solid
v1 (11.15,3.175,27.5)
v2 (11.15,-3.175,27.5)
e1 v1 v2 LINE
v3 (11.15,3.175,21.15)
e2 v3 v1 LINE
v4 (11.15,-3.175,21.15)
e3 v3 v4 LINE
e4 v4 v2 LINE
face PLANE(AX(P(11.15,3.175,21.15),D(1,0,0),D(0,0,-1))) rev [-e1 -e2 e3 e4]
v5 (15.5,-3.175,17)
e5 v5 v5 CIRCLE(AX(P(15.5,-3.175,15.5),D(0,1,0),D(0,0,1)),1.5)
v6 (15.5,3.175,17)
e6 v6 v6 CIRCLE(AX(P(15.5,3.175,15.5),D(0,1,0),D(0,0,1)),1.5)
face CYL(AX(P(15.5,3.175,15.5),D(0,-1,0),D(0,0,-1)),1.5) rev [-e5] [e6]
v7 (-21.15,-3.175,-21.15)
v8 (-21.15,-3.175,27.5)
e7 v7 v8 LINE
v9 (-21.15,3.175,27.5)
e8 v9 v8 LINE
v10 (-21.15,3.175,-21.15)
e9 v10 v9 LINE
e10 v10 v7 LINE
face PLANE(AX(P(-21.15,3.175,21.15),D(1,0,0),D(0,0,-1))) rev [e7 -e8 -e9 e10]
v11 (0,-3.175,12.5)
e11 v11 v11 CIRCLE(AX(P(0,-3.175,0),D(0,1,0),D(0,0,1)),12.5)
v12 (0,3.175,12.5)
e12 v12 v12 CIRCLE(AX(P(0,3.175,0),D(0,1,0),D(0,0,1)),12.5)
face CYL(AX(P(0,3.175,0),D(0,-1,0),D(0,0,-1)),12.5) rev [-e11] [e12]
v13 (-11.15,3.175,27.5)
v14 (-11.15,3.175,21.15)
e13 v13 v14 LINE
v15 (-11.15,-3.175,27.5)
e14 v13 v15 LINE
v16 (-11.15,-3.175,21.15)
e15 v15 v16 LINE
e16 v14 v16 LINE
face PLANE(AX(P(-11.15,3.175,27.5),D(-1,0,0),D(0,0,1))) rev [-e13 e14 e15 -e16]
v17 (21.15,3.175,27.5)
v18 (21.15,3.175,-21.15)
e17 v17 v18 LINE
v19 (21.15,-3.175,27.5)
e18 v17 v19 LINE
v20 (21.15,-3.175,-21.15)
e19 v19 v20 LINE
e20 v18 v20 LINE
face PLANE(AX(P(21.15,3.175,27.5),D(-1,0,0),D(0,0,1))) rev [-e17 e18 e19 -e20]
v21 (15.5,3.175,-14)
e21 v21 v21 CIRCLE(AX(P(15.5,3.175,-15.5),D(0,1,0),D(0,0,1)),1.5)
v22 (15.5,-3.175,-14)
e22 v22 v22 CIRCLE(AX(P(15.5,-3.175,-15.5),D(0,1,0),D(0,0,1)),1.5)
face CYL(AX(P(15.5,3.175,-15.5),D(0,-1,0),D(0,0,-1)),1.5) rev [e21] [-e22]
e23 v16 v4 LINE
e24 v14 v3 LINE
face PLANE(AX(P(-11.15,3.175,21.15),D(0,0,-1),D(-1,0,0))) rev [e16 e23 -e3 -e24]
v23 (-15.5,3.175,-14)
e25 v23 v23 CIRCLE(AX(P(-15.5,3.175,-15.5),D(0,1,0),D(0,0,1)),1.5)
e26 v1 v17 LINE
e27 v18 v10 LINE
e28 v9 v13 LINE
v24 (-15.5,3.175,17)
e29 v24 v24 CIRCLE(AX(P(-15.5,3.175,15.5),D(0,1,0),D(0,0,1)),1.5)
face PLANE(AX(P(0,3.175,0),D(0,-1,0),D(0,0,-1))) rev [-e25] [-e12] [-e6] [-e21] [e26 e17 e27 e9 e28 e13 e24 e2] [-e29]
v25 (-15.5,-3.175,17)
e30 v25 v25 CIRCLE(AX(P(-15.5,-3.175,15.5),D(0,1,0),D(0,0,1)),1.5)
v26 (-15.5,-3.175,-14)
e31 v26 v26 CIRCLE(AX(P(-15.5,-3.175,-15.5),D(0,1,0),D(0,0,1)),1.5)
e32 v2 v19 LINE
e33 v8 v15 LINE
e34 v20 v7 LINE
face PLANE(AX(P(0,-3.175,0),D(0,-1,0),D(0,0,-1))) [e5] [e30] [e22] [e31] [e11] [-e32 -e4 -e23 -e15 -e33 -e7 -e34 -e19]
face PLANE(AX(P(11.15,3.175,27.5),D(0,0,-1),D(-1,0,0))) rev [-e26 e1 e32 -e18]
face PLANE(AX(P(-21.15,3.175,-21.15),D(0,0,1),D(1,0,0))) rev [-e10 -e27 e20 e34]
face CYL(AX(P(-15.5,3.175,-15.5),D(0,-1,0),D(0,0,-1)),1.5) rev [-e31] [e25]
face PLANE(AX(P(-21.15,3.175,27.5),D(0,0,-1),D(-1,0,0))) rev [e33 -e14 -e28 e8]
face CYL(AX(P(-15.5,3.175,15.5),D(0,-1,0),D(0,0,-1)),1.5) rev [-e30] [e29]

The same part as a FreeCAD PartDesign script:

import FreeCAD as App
import Part
import Sketcher

V = App.Vector

doc = App.newDocument("Part")
body = doc.addObject("PartDesign::Body", "Body")

# Sketch on XZ plane
sketch1 = doc.addObject("Sketcher::SketchObject", "Sketch")
body.addObject(sketch1)
sketch1.AttachmentSupport = (doc.XZ_Plane, [""])
sketch1.MapMode = "FlatFace"
sketch1.addGeometry([
    Part.LineSegment(V(-21.1, 27.5, 0), V(-11.2, 27.5, 0)),  # 0
    Part.LineSegment(V(-11.2, 27.5, 0), V(-11.2, 21.1, 0)),  # 1
    Part.LineSegment(V(-11.2, 21.1, 0), V(11.2, 21.1, 0)),  # 2
    Part.LineSegment(V(11.2, 21.1, 0), V(11.2, 27.5, 0)),  # 3
    Part.LineSegment(V(11.2, 27.5, 0), V(21.1, 27.5, 0)),  # 4
    Part.LineSegment(V(21.1, 27.5, 0), V(21.1, -21.1, 0)),  # 5
    Part.LineSegment(V(21.1, -21.1, 0), V(-21.1, -21.1, 0)),  # 6
    Part.LineSegment(V(-21.1, -21.1, 0), V(-21.1, 27.5, 0)),  # 7
    Part.Circle(V(-15.5, 15.5, 0), V(0, 0, 1), 1.5),  # 8
    Part.Circle(V(15.5, 15.5, 0), V(0, 0, 1), 1.5),  # 9
    Part.Circle(V(-15.5, -15.5, 0), V(0, 0, 1), 1.5),  # 10
    Part.Circle(V(0, 0, 0), V(0, 0, 1), 12.5),  # 11
    Part.Circle(V(15.5, -15.5, 0), V(0, 0, 1), 1.5),  # 12
], False)
sketch1.addConstraint([
    Sketcher.Constraint("Coincident", 0, 2, 1, 1),
    Sketcher.Constraint("Coincident", 1, 2, 2, 1),
    Sketcher.Constraint("Coincident", 2, 2, 3, 1),
    Sketcher.Constraint("Coincident", 3, 2, 4, 1),
    Sketcher.Constraint("Coincident", 4, 2, 5, 1),
    Sketcher.Constraint("Coincident", 5, 2, 6, 1),
    Sketcher.Constraint("Coincident", 6, 2, 7, 1),
    Sketcher.Constraint("Coincident", 7, 2, 0, 1),
    Sketcher.Constraint("Horizontal", 0),
    Sketcher.Constraint("Vertical", 1),
    Sketcher.Constraint("Horizontal", 2),
    Sketcher.Constraint("Vertical", 3),
    Sketcher.Constraint("Horizontal", 4),
    Sketcher.Constraint("Vertical", 5),
    Sketcher.Constraint("Horizontal", 6),
    Sketcher.Constraint("Vertical", 7),
    Sketcher.Constraint("Coincident", 11, 3, -1, 1),
    Sketcher.Constraint("Equal", 8, 9),
    Sketcher.Constraint("Equal", 9, 10),
    Sketcher.Constraint("Equal", 10, 12),
    Sketcher.Constraint("Symmetric", 9, 3, 10, 3, -1, 1),
    Sketcher.Constraint("Symmetric", 8, 3, 12, 3, -1, 1),
    Sketcher.Constraint("Symmetric", 8, 3, 9, 3, -2),
    Sketcher.Constraint("Symmetric", 0, 2, 3, 2, -2),
    Sketcher.Constraint("Equal", 0, 4),
    Sketcher.Constraint("Diameter", 8, 3.0),
    Sketcher.Constraint("Diameter", 11, 25.0),
    Sketcher.Constraint("DistanceX", 0, 1, 0, 2, 10.0),
    Sketcher.Constraint("DistanceX", 2, 1, 2, 2, 22.3),
    Sketcher.Constraint("DistanceX", 8, 3, 9, 3, 31.0),
    Sketcher.Constraint("DistanceY", 10, 3, 8, 3, 31.0),
    Sketcher.Constraint("DistanceY", 8, 3, 0, 2, 12.0),
    Sketcher.Constraint("DistanceY", 1, 2, 1, 1, 6.35),
    Sketcher.Constraint("DistanceY", 5, 2, 5, 1, 48.65),
])
pad1 = doc.addObject("PartDesign::Pad", "Pad")
body.addObject(pad1)
pad1.Profile = sketch1
pad1.Length = 6.35
pad1.Midplane = True

doc.recompute()
